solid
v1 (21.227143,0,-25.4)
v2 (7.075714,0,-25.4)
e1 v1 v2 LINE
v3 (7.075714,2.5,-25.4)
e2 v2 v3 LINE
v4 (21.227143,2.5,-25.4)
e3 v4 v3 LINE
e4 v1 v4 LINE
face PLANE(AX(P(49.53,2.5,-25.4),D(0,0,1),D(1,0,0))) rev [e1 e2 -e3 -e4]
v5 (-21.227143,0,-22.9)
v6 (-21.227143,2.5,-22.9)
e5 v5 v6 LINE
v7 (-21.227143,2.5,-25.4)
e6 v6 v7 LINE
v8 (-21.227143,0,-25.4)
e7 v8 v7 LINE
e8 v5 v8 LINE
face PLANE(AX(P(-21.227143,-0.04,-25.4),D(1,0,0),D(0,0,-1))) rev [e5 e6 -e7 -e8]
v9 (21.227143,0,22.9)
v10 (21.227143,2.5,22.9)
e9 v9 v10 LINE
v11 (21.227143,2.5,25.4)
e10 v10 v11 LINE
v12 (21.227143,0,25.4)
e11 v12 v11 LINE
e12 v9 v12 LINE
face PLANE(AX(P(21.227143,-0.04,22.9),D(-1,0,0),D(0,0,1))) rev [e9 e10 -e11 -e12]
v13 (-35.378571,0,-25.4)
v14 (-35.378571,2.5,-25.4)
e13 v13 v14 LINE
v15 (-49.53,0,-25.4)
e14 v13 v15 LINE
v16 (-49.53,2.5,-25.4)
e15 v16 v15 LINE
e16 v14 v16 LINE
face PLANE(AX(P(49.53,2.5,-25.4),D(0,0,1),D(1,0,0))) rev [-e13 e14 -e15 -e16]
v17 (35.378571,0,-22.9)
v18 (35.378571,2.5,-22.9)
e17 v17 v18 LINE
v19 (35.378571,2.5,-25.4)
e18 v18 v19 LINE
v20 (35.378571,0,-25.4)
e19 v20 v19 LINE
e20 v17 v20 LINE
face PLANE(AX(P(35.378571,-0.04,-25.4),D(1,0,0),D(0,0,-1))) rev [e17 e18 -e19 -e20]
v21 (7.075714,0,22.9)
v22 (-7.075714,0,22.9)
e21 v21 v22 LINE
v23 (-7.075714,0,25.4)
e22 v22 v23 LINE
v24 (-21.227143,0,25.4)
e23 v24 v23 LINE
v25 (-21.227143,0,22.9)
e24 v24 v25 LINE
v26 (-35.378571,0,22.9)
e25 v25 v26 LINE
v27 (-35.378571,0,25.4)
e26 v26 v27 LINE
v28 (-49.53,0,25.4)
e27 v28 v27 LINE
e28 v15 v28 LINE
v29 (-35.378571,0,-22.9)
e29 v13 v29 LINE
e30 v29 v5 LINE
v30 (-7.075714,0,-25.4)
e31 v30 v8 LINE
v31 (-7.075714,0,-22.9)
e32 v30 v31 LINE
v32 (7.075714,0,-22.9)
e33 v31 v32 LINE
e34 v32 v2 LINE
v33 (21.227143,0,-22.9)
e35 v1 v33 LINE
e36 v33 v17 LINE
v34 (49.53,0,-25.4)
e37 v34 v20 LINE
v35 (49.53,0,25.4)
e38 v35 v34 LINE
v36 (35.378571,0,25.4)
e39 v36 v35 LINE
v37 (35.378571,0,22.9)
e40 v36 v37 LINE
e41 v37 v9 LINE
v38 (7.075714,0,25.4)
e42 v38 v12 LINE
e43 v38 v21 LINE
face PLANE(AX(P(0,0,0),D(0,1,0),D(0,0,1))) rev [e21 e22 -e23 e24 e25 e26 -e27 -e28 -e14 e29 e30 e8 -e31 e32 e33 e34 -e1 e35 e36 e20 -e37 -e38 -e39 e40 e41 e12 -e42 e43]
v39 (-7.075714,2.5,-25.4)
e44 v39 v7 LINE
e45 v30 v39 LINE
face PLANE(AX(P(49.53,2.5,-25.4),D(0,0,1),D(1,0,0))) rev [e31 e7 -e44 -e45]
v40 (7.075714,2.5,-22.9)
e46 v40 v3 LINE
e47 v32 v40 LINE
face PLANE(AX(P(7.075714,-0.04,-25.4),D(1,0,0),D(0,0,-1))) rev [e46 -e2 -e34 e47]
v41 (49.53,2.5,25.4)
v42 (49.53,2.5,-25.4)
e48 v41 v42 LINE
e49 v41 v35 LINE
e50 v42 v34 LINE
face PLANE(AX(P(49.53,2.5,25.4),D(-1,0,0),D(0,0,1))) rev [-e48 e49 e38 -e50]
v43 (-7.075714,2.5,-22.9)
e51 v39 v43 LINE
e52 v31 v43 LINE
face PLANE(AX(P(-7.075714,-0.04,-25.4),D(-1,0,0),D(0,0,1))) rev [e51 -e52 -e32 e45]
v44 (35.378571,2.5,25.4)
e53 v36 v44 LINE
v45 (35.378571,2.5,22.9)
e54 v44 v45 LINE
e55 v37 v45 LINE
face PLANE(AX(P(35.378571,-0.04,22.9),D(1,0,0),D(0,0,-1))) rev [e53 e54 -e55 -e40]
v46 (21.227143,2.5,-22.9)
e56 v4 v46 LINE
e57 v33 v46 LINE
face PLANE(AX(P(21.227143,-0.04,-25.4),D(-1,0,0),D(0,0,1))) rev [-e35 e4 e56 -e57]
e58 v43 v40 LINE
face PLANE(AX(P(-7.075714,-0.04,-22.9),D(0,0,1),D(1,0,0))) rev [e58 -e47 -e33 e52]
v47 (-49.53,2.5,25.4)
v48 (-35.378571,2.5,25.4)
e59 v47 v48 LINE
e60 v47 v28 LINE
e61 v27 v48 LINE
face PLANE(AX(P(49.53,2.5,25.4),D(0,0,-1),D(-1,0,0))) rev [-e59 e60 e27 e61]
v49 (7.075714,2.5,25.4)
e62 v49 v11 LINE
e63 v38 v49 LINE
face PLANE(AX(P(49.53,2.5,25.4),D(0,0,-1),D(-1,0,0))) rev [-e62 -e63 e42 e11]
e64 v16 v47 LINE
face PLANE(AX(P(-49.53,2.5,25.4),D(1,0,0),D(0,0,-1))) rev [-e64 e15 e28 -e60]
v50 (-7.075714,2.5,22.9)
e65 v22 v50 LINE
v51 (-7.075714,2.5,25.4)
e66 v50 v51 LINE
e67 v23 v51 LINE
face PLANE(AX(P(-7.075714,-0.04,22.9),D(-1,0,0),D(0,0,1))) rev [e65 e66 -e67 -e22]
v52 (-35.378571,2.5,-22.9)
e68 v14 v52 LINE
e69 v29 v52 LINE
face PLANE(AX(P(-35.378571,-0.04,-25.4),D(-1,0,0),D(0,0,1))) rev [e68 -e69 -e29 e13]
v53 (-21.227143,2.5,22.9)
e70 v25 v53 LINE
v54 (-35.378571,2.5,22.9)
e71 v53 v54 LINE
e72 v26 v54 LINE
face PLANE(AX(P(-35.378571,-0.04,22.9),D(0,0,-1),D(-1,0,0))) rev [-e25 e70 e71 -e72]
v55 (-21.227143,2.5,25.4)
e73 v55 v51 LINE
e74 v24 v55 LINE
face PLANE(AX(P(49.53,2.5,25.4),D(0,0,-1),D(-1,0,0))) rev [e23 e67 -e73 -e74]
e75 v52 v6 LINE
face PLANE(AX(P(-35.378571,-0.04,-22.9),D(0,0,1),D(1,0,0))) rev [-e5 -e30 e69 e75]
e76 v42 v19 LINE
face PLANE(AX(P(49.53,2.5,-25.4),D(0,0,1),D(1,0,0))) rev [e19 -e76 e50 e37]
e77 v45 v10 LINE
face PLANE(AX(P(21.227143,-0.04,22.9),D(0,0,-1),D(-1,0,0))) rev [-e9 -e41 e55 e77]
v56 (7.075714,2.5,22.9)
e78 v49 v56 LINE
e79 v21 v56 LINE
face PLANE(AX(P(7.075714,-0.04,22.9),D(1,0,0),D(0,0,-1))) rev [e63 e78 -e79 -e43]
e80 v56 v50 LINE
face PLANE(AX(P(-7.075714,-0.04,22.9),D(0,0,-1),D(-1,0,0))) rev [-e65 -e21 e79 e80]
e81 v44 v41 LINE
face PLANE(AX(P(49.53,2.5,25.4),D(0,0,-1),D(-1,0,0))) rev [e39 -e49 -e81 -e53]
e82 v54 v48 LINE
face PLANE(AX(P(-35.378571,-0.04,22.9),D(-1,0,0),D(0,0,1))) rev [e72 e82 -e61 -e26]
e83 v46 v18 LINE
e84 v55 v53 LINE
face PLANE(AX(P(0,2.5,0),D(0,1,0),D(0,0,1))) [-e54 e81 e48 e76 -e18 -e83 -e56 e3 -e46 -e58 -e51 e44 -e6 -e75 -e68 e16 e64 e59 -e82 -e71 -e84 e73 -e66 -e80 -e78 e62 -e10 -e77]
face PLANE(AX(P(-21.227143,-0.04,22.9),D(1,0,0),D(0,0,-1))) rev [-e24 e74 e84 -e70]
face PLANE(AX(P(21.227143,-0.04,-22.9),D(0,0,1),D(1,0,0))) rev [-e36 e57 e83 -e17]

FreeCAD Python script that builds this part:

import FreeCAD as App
import Part
import Sketcher
Q = App.Units.Quantity

doc = App.newDocument("Part")
body = doc.addObject("PartDesign::Body", "Body")

# Sketch on XZ plane
sketch1 = body.newObject("Sketcher::SketchObject", "Sketch")
sketch1.AttachmentSupport = (doc.getObject("XZ_Plane"), [""])
sketch1.MapMode = "FlatFace"
sketch1.addGeometry(Part.LineSegment(App.Vector(-50, -25, 0), App.Vector(-50, 25, 0)), False)
sketch1.addGeometry(Part.LineSegment(App.Vector(-50, 25, 0), App.Vector(50, 25, 0)), False)
sketch1.addGeometry(Part.LineSegment(App.Vector(50, 25, 0), App.Vector(50, -25, 0)), False)
sketch1.addGeometry(Part.LineSegment(App.Vector(50, -25, 0), App.Vector(-50, -25, 0)), False)
sketch1.addConstraint(Sketcher.Constraint("Coincident", 0, 2, 1, 1))
sketch1.addConstraint(Sketcher.Constraint("Coincident", 1, 2, 2, 1))
sketch1.addConstraint(Sketcher.Constraint("Coincident", 2, 2, 3, 1))
sketch1.addConstraint(Sketcher.Constraint("Coincident", 3, 2, 0, 1))
sketch1.addConstraint(Sketcher.Constraint("Vertical", 0))
sketch1.addConstraint(Sketcher.Constraint("Horizontal", 1))
sketch1.addConstraint(Sketcher.Constraint("Vertical", 2))
sketch1.addConstraint(Sketcher.Constraint("Horizontal", 3))
sketch1.addConstraint(Sketcher.Constraint("Symmetric", 0, 2, 2, 2, -1, 1))
sketch1.addConstraint(Sketcher.Constraint("DistanceY", 0, 1, 0, 2, Q("2 in")))
sketch1.addConstraint(Sketcher.Constraint("DistanceX", 1, 1, 1, 2, Q("3.9 in")))
pad1 = body.newObject("PartDesign::Pad", "Pad")
pad1.Profile = sketch1
pad1.Length = 2.5
pad1.Reversed = True

# Sketch on XZ plane
sketch2 = body.newObject("Sketcher::SketchObject", "Sketch001")
sketch2.AttachmentSupport = (doc.getObject("XZ_Plane"), [""])
sketch2.MapMode = "FlatFace"
sketch2.AttachmentOffset = App.Placement(App.Vector(0, 0, -2.5), App.Rotation())
sketch2.addGeometry(Part.LineSegment(App.Vector(-35.4, -25.4, 0), App.Vector(-35.4, -22.9, 0)), False)
sketch2.addGeometry(Part.LineSegment(App.Vector(-35.4, -22.9, 0), App.Vector(-21.2, -22.9, 0)), False)
sketch2.addGeometry(Part.LineSegment(App.Vector(-21.2, -22.9, 0), App.Vector(-21.2, -25.4, 0)), False)
sketch2.addGeometry(Part.LineSegment(App.Vector(-21.2, -25.4, 0), App.Vector(-35.4, -25.4, 0)), False)
sketch2.addGeometry(Part.LineSegment(App.Vector(-7.1, -25.4, 0), App.Vector(-7.1, -22.9, 0)), False)
sketch2.addGeometry(Part.LineSegment(App.Vector(-7.1, -22.9, 0), App.Vector(7.1, -22.9, 0)), False)
sketch2.addGeometry(Part.LineSegment(App.Vector(7.1, -22.9, 0), App.Vector(7.1, -25.4, 0)), False)
sketch2.addGeometry(Part.LineSegment(App.Vector(7.1, -25.4, 0), App.Vector(-7.1, -25.4, 0)), False)
sketch2.addGeometry(Part.LineSegment(App.Vector(21.2, -25.4, 0), App.Vector(21.2, -22.9, 0)), False)
sketch2.addGeometry(Part.LineSegment(App.Vector(21.2, -22.9, 0), App.Vector(35.4, -22.9, 0)), False)
sketch2.addGeometry(Part.LineSegment(App.Vector(35.4, -22.9, 0), App.Vector(35.4, -25.4, 0)), False)
sketch2.addGeometry(Part.LineSegment(App.Vector(35.4, -25.4, 0), App.Vector(21.2, -25.4, 0)), False)
sketch2.addGeometry(Part.LineSegment(App.Vector(-35.4, 22.9, 0), App.Vector(-35.4, 25.4, 0)), False)
sketch2.addGeometry(Part.LineSegment(App.Vector(-35.4, 25.4, 0), App.Vector(-21.2, 25.4, 0)), False)
sketch2.addGeometry(Part.LineSegment(App.Vector(-21.2, 25.4, 0), App.Vector(-21.2, 22.9, 0)), False)
sketch2.addGeometry(Part.LineSegment(App.Vector(-21.2, 22.9, 0), App.Vector(-35.4, 22.9, 0)), False)
sketch2.addGeometry(Part.LineSegment(App.Vector(-7.1, 22.9, 0), App.Vector(-7.1, 25.4, 0)), False)
sketch2.addGeometry(Part.LineSegment(App.Vector(-7.1, 25.4, 0), App.Vector(7.1, 25.4, 0)), False)
sketch2.addGeometry(Part.LineSegment(App.Vector(7.1, 25.4, 0), App.Vector(7.1, 22.9, 0)), False)
sketch2.addGeometry(Part.LineSegment(App.Vector(7.1, 22.9, 0), App.Vector(-7.1, 22.9, 0)), False)
sketch2.addGeometry(Part.LineSegment(App.Vector(21.2, 22.9, 0), App.Vector(21.2, 25.4, 0)), False)
sketch2.addGeometry(Part.LineSegment(App.Vector(21.2, 25.4, 0), App.Vector(35.4, 25.4, 0)), False)
sketch2.addGeometry(Part.LineSegment(App.Vector(35.4, 25.4, 0), App.Vector(35.4, 22.9, 0)), False)
sketch2.addGeometry(Part.LineSegment(App.Vector(35.4, 22.9, 0), App.Vector(21.2, 22.9, 0)), False)
sketch2.addConstraint(Sketcher.Constraint("Coincident", 0, 2, 1, 1))
sketch2.addConstraint(Sketcher.Constraint("Coincident", 1, 2, 2, 1))
sketch2.addConstraint(Sketcher.Constraint("Coincident", 2, 2, 3, 1))
sketch2.addConstraint(Sketcher.Constraint("Coincident", 3, 2, 0, 1))
sketch2.addConstraint(Sketcher.Constraint("Coincident", 4, 2, 5, 1))
sketch2.addConstraint(Sketcher.Constraint("Coincident", 5, 2, 6, 1))
sketch2.addConstraint(Sketcher.Constraint("Coincident", 6, 2, 7, 1))
sketch2.addConstraint(Sketcher.Constraint("Coincident", 7, 2, 4, 1))
sketch2.addConstraint(Sketcher.Constraint("Coincident", 8, 2, 9, 1))
sketch2.addConstraint(Sketcher.Constraint("Coincident", 9, 2, 10, 1))
sketch2.addConstraint(Sketcher.Constraint("Coincident", 10, 2, 11, 1))
sketch2.addConstraint(Sketcher.Constraint("Coincident", 11, 2, 8, 1))
sketch2.addConstraint(Sketcher.Constraint("Coincident", 12, 2, 13, 1))
sketch2.addConstraint(Sketcher.Constraint("Coincident", 13, 2, 14, 1))
sketch2.addConstraint(Sketcher.Constraint("Coincident", 14, 2, 15, 1))
sketch2.addConstraint(Sketcher.Constraint("Coincident", 15, 2, 12, 1))
sketch2.addConstraint(Sketcher.Constraint("Coincident", 16, 2, 17, 1))
sketch2.addConstraint(Sketcher.Constraint("Coincident", 17, 2, 18, 1))
sketch2.addConstraint(Sketcher.Constraint("Coincident", 18, 2, 19, 1))
sketch2.addConstraint(Sketcher.Constraint("Coincident", 19, 2, 16, 1))
sketch2.addConstraint(Sketcher.Constraint("Coincident", 20, 2, 21, 1))
sketch2.addConstraint(Sketcher.Constraint("Coincident", 21, 2, 22, 1))
sketch2.addConstraint(Sketcher.Constraint("Coincident", 22, 2, 23, 1))
sketch2.addConstraint(Sketcher.Constraint("Coincident", 23, 2, 20, 1))
sketch2.addConstraint(Sketcher.Constraint("Vertical", 0))
sketch2.addConstraint(Sketcher.Constraint("Horizontal", 1))
sketch2.addConstraint(Sketcher.Constraint("Vertical", 2))
sketch2.addConstraint(Sketcher.Constraint("Horizontal", 3))
sketch2.addConstraint(Sketcher.Constraint("Vertical", 4))
sketch2.addConstraint(Sketcher.Constraint("Horizontal", 5))
sketch2.addConstraint(Sketcher.Constraint("Vertical", 6))
sketch2.addConstraint(Sketcher.Constraint("Horizontal", 7))
sketch2.addConstraint(Sketcher.Constraint("Vertical", 8))
sketch2.addConstraint(Sketcher.Constraint("Horizontal", 9))
sketch2.addConstraint(Sketcher.Constraint("Vertical", 10))
sketch2.addConstraint(Sketcher.Constraint("Horizontal", 11))
sketch2.addConstraint(Sketcher.Constraint("Vertical", 12))
sketch2.addConstraint(Sketcher.Constraint("Horizontal", 13))
sketch2.addConstraint(Sketcher.Constraint("Vertical", 14))
sketch2.addConstraint(Sketcher.Constraint("Horizontal", 15))
sketch2.addConstraint(Sketcher.Constraint("Vertical", 16))
sketch2.addConstraint(Sketcher.Constraint("Horizontal", 17))
sketch2.addConstraint(Sketcher.Constraint("Vertical", 18))
sketch2.addConstraint(Sketcher.Constraint("Horizontal", 19))
sketch2.addConstraint(Sketcher.Constraint("Vertical", 20))
sketch2.addConstraint(Sketcher.Constraint("Horizontal", 21))
sketch2.addConstraint(Sketcher.Constraint("Vertical", 22))
sketch2.addConstraint(Sketcher.Constraint("Horizontal", 23))
sketch2.addConstraint(Sketcher.Constraint("Symmetric", 10, 2, 12, 2, -1, 1))
sketch2.addConstraint(Sketcher.Constraint("Symmetric", 8, 2, 14, 2, -1, 1))
sketch2.addConstraint(Sketcher.Constraint("Symmetric", 6, 2, 16, 2, -1, 1))
sketch2.addConstraint(Sketcher.Constraint("Symmetric", 4, 2, 18, 2, -1, 1))
sketch2.addConstraint(Sketcher.Constraint("Symmetric", 2, 2, 20, 2, -1, 1))
sketch2.addConstraint(Sketcher.Constraint("Symmetric", 0, 2, 22, 2, -1, 1))
sketch2.addConstraint(Sketcher.Constraint("Symmetric", 1, 2, 8, 2, -2))
sketch2.addConstraint(Sketcher.Constraint("Symmetric", 3, 2, 10, 2, -2))
sketch2.addConstraint(Sketcher.Constraint("Horizontal", 1, 2, 4, 2))
sketch2.addConstraint(Sketcher.Constraint("Horizontal", 3, 2, 6, 2))
sketch2.addConstraint(Sketcher.Constraint("Vertical", 7, 2, 16, 2))
sketch2.addConstraint(Sketcher.Constraint("Equal", 3, 5))
sketch2.addConstraint(Sketcher.Constraint("DistanceY", 2, 2, -1, 1, Q("1 in")))
sketch2.addConstraint(Sketcher.Constraint("DistanceY", 0, 1, 0, 2, Q("2.5 mm")))
sketch2.addConstraint(Sketcher.Constraint("DistanceX", 1, 1, 1, 2, Q("14.151429 mm")))
sketch2.addConstraint(Sketcher.Constraint("DistanceX", 0, 2, -1, 1, Q("35.378571 mm")))
pocket1 = body.newObject("PartDesign::Pocket", "Pocket")
pocket1.Profile = sketch2
pocket1.Length = Q("0.1 in")
pocket1.Reversed = True

doc.recompute()
